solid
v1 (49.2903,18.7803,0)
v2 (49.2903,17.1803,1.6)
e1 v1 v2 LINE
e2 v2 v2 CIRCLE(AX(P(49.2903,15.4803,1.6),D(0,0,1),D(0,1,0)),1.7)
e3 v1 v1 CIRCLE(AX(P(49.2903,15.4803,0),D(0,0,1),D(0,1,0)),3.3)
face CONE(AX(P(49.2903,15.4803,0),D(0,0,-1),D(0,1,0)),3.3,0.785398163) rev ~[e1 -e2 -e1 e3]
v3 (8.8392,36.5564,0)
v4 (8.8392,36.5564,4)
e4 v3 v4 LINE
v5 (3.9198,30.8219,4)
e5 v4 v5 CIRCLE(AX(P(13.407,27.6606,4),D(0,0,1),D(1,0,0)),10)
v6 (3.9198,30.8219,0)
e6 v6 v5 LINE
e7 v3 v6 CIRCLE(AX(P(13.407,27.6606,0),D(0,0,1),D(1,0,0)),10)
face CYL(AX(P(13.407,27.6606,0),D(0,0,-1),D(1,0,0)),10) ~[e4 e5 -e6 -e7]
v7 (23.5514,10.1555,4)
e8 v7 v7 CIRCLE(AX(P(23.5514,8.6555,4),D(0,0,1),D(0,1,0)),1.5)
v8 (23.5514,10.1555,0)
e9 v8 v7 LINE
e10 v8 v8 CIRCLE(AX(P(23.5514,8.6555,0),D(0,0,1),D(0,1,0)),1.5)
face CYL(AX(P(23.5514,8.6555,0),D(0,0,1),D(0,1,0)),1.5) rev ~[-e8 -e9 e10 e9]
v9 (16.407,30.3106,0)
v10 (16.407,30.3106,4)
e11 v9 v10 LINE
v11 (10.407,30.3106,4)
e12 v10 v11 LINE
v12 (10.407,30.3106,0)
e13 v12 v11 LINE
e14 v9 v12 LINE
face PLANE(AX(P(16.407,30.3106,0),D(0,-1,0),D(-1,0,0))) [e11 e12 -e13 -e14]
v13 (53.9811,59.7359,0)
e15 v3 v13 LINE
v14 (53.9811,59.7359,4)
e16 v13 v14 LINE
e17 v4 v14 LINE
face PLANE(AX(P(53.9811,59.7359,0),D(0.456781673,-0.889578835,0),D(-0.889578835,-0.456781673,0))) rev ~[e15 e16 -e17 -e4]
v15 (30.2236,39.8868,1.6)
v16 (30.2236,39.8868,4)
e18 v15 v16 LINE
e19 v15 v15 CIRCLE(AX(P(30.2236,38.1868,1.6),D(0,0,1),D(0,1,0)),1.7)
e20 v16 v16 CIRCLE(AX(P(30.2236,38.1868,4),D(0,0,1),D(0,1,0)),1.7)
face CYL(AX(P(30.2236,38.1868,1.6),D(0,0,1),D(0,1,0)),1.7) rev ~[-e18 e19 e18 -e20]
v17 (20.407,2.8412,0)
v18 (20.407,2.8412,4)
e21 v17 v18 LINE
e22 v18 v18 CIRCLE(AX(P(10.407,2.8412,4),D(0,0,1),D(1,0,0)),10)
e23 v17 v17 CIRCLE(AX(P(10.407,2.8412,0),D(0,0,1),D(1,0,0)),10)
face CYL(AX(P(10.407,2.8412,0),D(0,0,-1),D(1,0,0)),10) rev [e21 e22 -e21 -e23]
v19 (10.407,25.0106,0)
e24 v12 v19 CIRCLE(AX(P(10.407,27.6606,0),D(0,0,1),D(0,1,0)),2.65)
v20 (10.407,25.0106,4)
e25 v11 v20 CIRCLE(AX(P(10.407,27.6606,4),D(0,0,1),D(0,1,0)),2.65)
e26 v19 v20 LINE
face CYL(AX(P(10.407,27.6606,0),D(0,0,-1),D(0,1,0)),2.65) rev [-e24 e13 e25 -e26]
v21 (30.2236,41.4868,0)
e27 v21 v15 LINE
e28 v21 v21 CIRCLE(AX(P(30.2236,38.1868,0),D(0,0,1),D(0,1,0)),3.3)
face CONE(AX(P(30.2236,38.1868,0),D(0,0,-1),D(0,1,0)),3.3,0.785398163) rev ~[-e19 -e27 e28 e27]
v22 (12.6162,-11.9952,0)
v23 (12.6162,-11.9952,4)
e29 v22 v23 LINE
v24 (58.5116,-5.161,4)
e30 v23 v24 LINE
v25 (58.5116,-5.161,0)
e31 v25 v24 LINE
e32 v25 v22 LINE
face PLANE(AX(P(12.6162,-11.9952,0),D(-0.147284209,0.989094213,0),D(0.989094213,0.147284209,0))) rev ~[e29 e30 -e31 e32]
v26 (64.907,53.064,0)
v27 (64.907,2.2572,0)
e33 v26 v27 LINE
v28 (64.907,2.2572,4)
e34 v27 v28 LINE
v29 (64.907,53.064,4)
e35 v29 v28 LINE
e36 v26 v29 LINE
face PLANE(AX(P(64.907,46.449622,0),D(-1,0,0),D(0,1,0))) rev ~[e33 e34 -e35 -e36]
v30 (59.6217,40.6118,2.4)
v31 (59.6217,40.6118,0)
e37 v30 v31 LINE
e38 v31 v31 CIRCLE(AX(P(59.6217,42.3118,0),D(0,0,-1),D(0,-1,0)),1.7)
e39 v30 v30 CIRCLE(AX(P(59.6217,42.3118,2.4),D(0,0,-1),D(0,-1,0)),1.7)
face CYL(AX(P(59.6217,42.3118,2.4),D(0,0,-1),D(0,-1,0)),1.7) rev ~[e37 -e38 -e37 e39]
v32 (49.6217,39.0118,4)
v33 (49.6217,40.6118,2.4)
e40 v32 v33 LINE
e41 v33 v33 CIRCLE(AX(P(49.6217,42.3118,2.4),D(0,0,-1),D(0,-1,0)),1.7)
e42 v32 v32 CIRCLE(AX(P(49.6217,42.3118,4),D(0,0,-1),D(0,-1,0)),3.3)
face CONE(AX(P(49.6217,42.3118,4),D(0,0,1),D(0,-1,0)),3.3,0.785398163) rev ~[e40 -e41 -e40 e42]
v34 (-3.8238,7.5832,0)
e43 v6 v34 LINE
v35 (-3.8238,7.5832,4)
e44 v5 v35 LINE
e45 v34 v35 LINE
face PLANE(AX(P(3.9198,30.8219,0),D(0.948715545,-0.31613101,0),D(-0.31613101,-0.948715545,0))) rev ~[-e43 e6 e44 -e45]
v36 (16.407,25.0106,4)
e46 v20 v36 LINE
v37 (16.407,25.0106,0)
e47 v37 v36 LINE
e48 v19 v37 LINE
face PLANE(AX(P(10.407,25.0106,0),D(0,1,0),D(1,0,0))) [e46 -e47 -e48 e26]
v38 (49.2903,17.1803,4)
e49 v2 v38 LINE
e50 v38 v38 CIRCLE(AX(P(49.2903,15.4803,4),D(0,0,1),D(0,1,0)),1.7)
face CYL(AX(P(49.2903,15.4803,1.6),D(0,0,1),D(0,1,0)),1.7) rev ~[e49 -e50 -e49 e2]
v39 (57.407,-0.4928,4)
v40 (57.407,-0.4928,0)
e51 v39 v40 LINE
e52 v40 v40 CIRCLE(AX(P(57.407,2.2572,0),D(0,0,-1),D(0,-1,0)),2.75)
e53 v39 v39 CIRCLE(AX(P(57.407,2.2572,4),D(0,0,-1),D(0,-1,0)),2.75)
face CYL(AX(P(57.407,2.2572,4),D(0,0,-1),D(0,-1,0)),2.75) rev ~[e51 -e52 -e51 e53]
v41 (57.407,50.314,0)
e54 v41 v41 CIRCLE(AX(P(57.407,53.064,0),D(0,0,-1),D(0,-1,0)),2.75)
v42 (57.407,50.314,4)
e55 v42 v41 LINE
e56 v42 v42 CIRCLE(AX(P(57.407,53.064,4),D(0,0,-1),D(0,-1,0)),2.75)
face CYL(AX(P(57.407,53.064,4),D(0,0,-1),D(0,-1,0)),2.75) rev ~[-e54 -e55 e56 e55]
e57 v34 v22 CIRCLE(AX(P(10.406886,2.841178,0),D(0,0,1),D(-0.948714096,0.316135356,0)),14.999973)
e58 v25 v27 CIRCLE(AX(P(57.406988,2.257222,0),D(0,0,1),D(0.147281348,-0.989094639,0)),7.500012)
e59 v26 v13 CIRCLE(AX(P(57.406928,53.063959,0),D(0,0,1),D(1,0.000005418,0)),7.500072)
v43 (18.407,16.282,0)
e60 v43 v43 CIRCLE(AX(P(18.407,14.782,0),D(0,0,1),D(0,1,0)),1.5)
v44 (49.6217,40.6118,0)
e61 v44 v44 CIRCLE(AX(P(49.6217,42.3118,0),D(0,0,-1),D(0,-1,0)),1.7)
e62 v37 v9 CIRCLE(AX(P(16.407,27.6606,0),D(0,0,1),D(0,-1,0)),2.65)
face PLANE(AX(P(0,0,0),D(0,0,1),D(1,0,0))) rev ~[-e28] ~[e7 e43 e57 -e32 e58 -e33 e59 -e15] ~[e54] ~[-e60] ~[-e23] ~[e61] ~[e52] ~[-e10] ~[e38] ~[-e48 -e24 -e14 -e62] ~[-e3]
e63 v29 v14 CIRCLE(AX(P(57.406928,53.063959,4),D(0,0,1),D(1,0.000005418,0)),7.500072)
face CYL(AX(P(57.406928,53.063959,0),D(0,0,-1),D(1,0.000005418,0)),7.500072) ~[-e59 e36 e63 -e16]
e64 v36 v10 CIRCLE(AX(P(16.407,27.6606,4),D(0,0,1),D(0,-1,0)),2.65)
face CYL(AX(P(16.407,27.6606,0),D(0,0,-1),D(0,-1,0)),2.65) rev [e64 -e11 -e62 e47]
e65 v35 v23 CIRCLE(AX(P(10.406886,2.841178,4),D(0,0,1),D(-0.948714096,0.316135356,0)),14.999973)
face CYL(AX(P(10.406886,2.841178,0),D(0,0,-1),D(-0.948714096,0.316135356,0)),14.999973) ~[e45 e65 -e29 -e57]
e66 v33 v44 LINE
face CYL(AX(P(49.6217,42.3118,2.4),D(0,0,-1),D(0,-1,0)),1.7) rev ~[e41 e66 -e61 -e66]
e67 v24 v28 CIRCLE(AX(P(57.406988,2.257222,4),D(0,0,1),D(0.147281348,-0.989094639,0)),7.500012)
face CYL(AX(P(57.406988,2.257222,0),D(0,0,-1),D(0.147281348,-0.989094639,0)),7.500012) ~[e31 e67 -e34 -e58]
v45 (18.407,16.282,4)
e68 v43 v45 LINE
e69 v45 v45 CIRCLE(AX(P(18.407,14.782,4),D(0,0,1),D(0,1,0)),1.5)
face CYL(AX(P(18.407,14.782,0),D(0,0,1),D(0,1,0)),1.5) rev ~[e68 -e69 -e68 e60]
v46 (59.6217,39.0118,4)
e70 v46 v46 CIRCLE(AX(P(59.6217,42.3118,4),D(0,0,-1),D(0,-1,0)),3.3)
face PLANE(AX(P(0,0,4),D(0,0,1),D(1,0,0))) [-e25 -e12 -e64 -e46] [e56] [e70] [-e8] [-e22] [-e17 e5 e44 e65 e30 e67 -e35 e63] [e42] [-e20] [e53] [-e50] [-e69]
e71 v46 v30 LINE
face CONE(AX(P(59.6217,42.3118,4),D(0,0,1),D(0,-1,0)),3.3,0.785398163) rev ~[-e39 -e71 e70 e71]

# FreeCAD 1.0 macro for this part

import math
import FreeCAD as App
import Part
import Sketcher

V = App.Vector
Q = App.Units.Quantity

doc = App.newDocument("Part")
body = doc.addObject("PartDesign::Body", "Body")

# Sketch on XY plane
sketch1 = doc.addObject("Sketcher::SketchObject", "Sketch")
body.addObject(sketch1)
sketch1.AttachmentSupport = (doc.XY_Plane, [""])
sketch1.MapMode = "FlatFace"
sketch1.addGeometry(Part.LineSegment(V(54, 59.7, 0), V(8.8, 36.6, 0)), False)
sketch1.addGeometry(Part.ArcOfCircle(Part.Circle(V(13.4, 27.7, 0), V(0, 0, 1), 10), math.radians(117), math.radians(162)), False)
sketch1.addGeometry(Part.LineSegment(V(3.9, 30.8, 0), V(-3.8, 7.6, 0)), False)
sketch1.addGeometry(Part.ArcOfCircle(Part.Circle(V(10.4, 2.8, 0), V(0, 0, 1), 15), math.radians(162), math.radians(278)), False)
sketch1.addGeometry(Part.LineSegment(V(12.6, -12, 0), V(58.5, -5.2, 0)), False)
sketch1.addGeometry(Part.ArcOfCircle(Part.Circle(V(57.4, 2.3, 0), V(0, 0, 1), 7.5), math.radians(-82), math.radians(0)), False)
sketch1.addGeometry(Part.LineSegment(V(64.9, 2.3, 0), V(64.9, 53.1, 0)), False)
sketch1.addGeometry(Part.ArcOfCircle(Part.Circle(V(57.4, 53.1, 0), V(0, 0, 1), 7.5), math.radians(0), math.radians(117)), False)
sketch1.addGeometry(Part.Circle(V(10.4, 2.8, 0), V(0, 0, 1), 10), False)
sketch1.addGeometry(Part.LineSegment(V(10.4, 30.3, 0), V(16.4, 30.3, 0)), False)
sketch1.addGeometry(Part.ArcOfCircle(Part.Circle(V(16.4, 27.7, 0), V(0, 0, 1), 2.6), math.radians(-90), math.radians(90)), False)
sketch1.addGeometry(Part.LineSegment(V(16.4, 25, 0), V(10.4, 25, 0)), False)
sketch1.addGeometry(Part.ArcOfCircle(Part.Circle(V(10.4, 27.7, 0), V(0, 0, 1), 2.7), math.radians(90), math.radians(270)), False)
sketch1.addConstraint(Sketcher.Constraint("Tangent", 0, 2, 1, 1))
sketch1.addConstraint(Sketcher.Constraint("Tangent", 1, 2, 2, 1))
sketch1.addConstraint(Sketcher.Constraint("Tangent", 2, 2, 3, 1))
sketch1.addConstraint(Sketcher.Constraint("Tangent", 3, 2, 4, 1))
sketch1.addConstraint(Sketcher.Constraint("Tangent", 4, 2, 5, 1))
sketch1.addConstraint(Sketcher.Constraint("Tangent", 5, 2, 6, 1))
sketch1.addConstraint(Sketcher.Constraint("Tangent", 6, 2, 7, 1))
sketch1.addConstraint(Sketcher.Constraint("Tangent", 7, 2, 0, 1))
sketch1.addConstraint(Sketcher.Constraint("Tangent", 9, 2, 10, 2))
sketch1.addConstraint(Sketcher.Constraint("Tangent", 10, 1, 11, 1))
sketch1.addConstraint(Sketcher.Constraint("Tangent", 11, 2, 12, 2))
sketch1.addConstraint(Sketcher.Constraint("Tangent", 12, 1, 9, 1))
sketch1.addConstraint(Sketcher.Constraint("Vertical", 6))
sketch1.addConstraint(Sketcher.Constraint("Horizontal", 9))
sketch1.addConstraint(Sketcher.Constraint("Horizontal", 11))
sketch1.addConstraint(Sketcher.Constraint("Coincident", 8, 3, 3, 3))
sketch1.addConstraint(Sketcher.Constraint("Equal", 5, 7))
sketch1.addConstraint(Sketcher.Constraint("Equal", 1, 8))
sketch1.addConstraint(Sketcher.Constraint("Horizontal", 1, 3, 10, 3))
sketch1.addConstraint(Sketcher.Constraint("Vertical", 8, 3, 12, 3))
sketch1.addConstraint(Sketcher.Constraint("Diameter", 8, Q("20 mm")))
sketch1.addConstraint(Sketcher.Constraint("Radius", 3, Q("15 mm")))
sketch1.addConstraint(Sketcher.Constraint("Radius", 5, Q("7.5 mm")))
sketch1.addConstraint(Sketcher.Constraint("Radius", 10, Q("2.65 mm")))
sketch1.addConstraint(Sketcher.Constraint("DistanceX", 3, 3, 1, 3, Q("3 mm")))
sketch1.addConstraint(Sketcher.Constraint("DistanceX", 1, 3, 10, 3, Q("3 mm")))
sketch1.addConstraint(Sketcher.Constraint("DistanceX", 3, 3, 5, 3, Q("47 mm")))
sketch1.addConstraint(Sketcher.Constraint("Angle", 0, Q("-152.8204 deg")))
sketch1.addConstraint(Sketcher.Constraint("Angle", 2, Q("-108.429 deg")))
sketch1.addConstraint(Sketcher.Constraint("Angle", 4, Q("8.4696 deg")))
sketch1.addConstraint(Sketcher.Constraint("DistanceX", -1, 1, 1, 3, Q("13.407 mm")))
sketch1.addConstraint(Sketcher.Constraint("DistanceY", -1, 1, 7, 3, Q("53.064 mm")))
pad1 = doc.addObject("PartDesign::Pad", "Pad")
body.addObject(pad1)
pad1.Profile = sketch1
pad1.Length = 4

# Sketch on XY plane
sketch2 = doc.addObject("Sketcher::SketchObject", "Sketch001")
body.addObject(sketch2)
sketch2.AttachmentSupport = (doc.XY_Plane, [""])
sketch2.MapMode = "FlatFace"
sketch2.AttachmentOffset = App.Placement(V(0, 0, 4), App.Rotation())
sketch2.addGeometry(Part.Circle(V(57.4, 53.1, 0), V(0, 0, 1), 2.8), False)
sketch2.addGeometry(Part.Circle(V(57.4, 2.3, 0), V(0, 0, 1), 2.8), False)
sketch2.addConstraint(Sketcher.Constraint("Equal", 0, 1))
sketch2.addConstraint(Sketcher.Constraint("Vertical", 0, 3, 1, 3))
sketch2.addConstraint(Sketcher.Constraint("Diameter", 0, Q("5.5 mm")))
sketch2.addConstraint(Sketcher.Constraint("DistanceX", -1, 1, 0, 3, Q("57.407 mm")))
sketch2.addConstraint(Sketcher.Constraint("DistanceY", -1, 1, 0, 3, Q("53.064 mm")))
sketch2.addConstraint(Sketcher.Constraint("DistanceY", -1, 1, 1, 3, Q("2.2572 mm")))
doc.recompute()
hole = doc.addObject("PartDesign::Hole", "Hole")
body.addObject(hole)
hole.Profile = sketch2
hole.ThreadType = "None"
hole.Diameter = 5.5
hole.DepthType = "ThroughAll"

# Sketch on XY plane
sketch3 = doc.addObject("Sketcher::SketchObject", "Sketch002")
body.addObject(sketch3)
sketch3.AttachmentSupport = (doc.XY_Plane, [""])
sketch3.MapMode = "FlatFace"
sketch3.addGeometry(Part.Circle(V(18.4, 14.8, 0), V(0, 0, 1), 1.5), False)
sketch3.addGeometry(Part.Circle(V(23.6, 8.7, 0), V(0, 0, 1), 1.5), False)
sketch3.addConstraint(Sketcher.Constraint("Equal", 0, 1))
sketch3.addConstraint(Sketcher.Constraint("Diameter", 0, Q("3 mm")))
sketch3.addConstraint(Sketcher.Constraint("DistanceX", -1, 1, 0, 3, Q("18.407 mm")))
sketch3.addConstraint(Sketcher.Constraint("DistanceY", -1, 1, 0, 3, Q("14.782 mm")))
sketch3.addConstraint(Sketcher.Constraint("DistanceX", -1, 1, 1, 3, Q("23.5514 mm")))
sketch3.addConstraint(Sketcher.Constraint("DistanceY", -1, 1, 1, 3, Q("8.6555 mm")))
doc.recompute()
hole2 = doc.addObject("PartDesign::Hole", "Hole001")
body.addObject(hole2)
hole2.Profile = sketch3
hole2.ThreadType = "None"
hole2.Diameter = 3
hole2.DepthType = "ThroughAll"
hole2.Reversed = True

# Sketch on XY plane
sketch4 = doc.addObject("Sketcher::SketchObject", "Sketch003")
body.addObject(sketch4)
sketch4.AttachmentSupport = (doc.XY_Plane, [""])
sketch4.MapMode = "FlatFace"
sketch4.addGeometry(Part.Circle(V(49.3, 15.5, 0), V(0, 0, 1), 1.7), False)
sketch4.addGeometry(Part.Circle(V(30.2, 38.2, 0), V(0, 0, 1), 1.7), False)
sketch4.addConstraint(Sketcher.Constraint("Equal", 0, 1))
sketch4.addConstraint(Sketcher.Constraint("Diameter", 0, Q("3.4 mm")))
sketch4.addConstraint(Sketcher.Constraint("DistanceX", -1, 1, 0, 3, Q("49.2903 mm")))
sketch4.addConstraint(Sketcher.Constraint("DistanceY", -1, 1, 0, 3, Q("15.4803 mm")))
sketch4.addConstraint(Sketcher.Constraint("DistanceX", -1, 1, 1, 3, Q("30.2236 mm")))
sketch4.addConstraint(Sketcher.Constraint("DistanceY", -1, 1, 1, 3, Q("38.1868 mm")))
doc.recompute()
hole3 = doc.addObject("PartDesign::Hole", "Hole002")
body.addObject(hole3)
hole3.Profile = sketch4
hole3.ThreadType = "None"
hole3.Diameter = 3.4
hole3.DepthType = "ThroughAll"
hole3.HoleCutType = "Countersink"
hole3.HoleCutDiameter = 6.6
hole3.HoleCutCountersinkAngle = 90
hole3.Reversed = True

# Sketch on XY plane
sketch5 = doc.addObject("Sketcher::SketchObject", "Sketch004")
body.addObject(sketch5)
sketch5.AttachmentSupport = (doc.XY_Plane, [""])
sketch5.MapMode = "FlatFace"
sketch5.AttachmentOffset = App.Placement(V(0, 0, 4), App.Rotation())
sketch5.addGeometry(Part.Circle(V(59.6, 42.3, 0), V(0, 0, 1), 1.7), False)
sketch5.addGeometry(Part.Circle(V(49.6, 42.3, 0), V(0, 0, 1), 1.7), False)
sketch5.addConstraint(Sketcher.Constraint("Equal", 0, 1))
sketch5.addConstraint(Sketcher.Constraint("Horizontal", 0, 3, 1, 3))
sketch5.addConstraint(Sketcher.Constraint("Diameter", 0, Q("3.4 mm")))
sketch5.addConstraint(Sketcher.Constraint("DistanceX", 1, 3, 0, 3, Q("10 mm")))
sketch5.addConstraint(Sketcher.Constraint("DistanceX", -1, 1, 0, 3, Q("59.6217 mm")))
sketch5.addConstraint(Sketcher.Constraint("DistanceY", -1, 1, 0, 3, Q("42.3118 mm")))
doc.recompute()
hole4 = doc.addObject("PartDesign::Hole", "Hole003")
body.addObject(hole4)
hole4.Profile = sketch5
hole4.ThreadType = "None"
hole4.Diameter = 3.4
hole4.DepthType = "ThroughAll"
hole4.HoleCutType = "Countersink"
hole4.HoleCutDiameter = 6.6
hole4.HoleCutCountersinkAngle = 90

doc.recompute()
